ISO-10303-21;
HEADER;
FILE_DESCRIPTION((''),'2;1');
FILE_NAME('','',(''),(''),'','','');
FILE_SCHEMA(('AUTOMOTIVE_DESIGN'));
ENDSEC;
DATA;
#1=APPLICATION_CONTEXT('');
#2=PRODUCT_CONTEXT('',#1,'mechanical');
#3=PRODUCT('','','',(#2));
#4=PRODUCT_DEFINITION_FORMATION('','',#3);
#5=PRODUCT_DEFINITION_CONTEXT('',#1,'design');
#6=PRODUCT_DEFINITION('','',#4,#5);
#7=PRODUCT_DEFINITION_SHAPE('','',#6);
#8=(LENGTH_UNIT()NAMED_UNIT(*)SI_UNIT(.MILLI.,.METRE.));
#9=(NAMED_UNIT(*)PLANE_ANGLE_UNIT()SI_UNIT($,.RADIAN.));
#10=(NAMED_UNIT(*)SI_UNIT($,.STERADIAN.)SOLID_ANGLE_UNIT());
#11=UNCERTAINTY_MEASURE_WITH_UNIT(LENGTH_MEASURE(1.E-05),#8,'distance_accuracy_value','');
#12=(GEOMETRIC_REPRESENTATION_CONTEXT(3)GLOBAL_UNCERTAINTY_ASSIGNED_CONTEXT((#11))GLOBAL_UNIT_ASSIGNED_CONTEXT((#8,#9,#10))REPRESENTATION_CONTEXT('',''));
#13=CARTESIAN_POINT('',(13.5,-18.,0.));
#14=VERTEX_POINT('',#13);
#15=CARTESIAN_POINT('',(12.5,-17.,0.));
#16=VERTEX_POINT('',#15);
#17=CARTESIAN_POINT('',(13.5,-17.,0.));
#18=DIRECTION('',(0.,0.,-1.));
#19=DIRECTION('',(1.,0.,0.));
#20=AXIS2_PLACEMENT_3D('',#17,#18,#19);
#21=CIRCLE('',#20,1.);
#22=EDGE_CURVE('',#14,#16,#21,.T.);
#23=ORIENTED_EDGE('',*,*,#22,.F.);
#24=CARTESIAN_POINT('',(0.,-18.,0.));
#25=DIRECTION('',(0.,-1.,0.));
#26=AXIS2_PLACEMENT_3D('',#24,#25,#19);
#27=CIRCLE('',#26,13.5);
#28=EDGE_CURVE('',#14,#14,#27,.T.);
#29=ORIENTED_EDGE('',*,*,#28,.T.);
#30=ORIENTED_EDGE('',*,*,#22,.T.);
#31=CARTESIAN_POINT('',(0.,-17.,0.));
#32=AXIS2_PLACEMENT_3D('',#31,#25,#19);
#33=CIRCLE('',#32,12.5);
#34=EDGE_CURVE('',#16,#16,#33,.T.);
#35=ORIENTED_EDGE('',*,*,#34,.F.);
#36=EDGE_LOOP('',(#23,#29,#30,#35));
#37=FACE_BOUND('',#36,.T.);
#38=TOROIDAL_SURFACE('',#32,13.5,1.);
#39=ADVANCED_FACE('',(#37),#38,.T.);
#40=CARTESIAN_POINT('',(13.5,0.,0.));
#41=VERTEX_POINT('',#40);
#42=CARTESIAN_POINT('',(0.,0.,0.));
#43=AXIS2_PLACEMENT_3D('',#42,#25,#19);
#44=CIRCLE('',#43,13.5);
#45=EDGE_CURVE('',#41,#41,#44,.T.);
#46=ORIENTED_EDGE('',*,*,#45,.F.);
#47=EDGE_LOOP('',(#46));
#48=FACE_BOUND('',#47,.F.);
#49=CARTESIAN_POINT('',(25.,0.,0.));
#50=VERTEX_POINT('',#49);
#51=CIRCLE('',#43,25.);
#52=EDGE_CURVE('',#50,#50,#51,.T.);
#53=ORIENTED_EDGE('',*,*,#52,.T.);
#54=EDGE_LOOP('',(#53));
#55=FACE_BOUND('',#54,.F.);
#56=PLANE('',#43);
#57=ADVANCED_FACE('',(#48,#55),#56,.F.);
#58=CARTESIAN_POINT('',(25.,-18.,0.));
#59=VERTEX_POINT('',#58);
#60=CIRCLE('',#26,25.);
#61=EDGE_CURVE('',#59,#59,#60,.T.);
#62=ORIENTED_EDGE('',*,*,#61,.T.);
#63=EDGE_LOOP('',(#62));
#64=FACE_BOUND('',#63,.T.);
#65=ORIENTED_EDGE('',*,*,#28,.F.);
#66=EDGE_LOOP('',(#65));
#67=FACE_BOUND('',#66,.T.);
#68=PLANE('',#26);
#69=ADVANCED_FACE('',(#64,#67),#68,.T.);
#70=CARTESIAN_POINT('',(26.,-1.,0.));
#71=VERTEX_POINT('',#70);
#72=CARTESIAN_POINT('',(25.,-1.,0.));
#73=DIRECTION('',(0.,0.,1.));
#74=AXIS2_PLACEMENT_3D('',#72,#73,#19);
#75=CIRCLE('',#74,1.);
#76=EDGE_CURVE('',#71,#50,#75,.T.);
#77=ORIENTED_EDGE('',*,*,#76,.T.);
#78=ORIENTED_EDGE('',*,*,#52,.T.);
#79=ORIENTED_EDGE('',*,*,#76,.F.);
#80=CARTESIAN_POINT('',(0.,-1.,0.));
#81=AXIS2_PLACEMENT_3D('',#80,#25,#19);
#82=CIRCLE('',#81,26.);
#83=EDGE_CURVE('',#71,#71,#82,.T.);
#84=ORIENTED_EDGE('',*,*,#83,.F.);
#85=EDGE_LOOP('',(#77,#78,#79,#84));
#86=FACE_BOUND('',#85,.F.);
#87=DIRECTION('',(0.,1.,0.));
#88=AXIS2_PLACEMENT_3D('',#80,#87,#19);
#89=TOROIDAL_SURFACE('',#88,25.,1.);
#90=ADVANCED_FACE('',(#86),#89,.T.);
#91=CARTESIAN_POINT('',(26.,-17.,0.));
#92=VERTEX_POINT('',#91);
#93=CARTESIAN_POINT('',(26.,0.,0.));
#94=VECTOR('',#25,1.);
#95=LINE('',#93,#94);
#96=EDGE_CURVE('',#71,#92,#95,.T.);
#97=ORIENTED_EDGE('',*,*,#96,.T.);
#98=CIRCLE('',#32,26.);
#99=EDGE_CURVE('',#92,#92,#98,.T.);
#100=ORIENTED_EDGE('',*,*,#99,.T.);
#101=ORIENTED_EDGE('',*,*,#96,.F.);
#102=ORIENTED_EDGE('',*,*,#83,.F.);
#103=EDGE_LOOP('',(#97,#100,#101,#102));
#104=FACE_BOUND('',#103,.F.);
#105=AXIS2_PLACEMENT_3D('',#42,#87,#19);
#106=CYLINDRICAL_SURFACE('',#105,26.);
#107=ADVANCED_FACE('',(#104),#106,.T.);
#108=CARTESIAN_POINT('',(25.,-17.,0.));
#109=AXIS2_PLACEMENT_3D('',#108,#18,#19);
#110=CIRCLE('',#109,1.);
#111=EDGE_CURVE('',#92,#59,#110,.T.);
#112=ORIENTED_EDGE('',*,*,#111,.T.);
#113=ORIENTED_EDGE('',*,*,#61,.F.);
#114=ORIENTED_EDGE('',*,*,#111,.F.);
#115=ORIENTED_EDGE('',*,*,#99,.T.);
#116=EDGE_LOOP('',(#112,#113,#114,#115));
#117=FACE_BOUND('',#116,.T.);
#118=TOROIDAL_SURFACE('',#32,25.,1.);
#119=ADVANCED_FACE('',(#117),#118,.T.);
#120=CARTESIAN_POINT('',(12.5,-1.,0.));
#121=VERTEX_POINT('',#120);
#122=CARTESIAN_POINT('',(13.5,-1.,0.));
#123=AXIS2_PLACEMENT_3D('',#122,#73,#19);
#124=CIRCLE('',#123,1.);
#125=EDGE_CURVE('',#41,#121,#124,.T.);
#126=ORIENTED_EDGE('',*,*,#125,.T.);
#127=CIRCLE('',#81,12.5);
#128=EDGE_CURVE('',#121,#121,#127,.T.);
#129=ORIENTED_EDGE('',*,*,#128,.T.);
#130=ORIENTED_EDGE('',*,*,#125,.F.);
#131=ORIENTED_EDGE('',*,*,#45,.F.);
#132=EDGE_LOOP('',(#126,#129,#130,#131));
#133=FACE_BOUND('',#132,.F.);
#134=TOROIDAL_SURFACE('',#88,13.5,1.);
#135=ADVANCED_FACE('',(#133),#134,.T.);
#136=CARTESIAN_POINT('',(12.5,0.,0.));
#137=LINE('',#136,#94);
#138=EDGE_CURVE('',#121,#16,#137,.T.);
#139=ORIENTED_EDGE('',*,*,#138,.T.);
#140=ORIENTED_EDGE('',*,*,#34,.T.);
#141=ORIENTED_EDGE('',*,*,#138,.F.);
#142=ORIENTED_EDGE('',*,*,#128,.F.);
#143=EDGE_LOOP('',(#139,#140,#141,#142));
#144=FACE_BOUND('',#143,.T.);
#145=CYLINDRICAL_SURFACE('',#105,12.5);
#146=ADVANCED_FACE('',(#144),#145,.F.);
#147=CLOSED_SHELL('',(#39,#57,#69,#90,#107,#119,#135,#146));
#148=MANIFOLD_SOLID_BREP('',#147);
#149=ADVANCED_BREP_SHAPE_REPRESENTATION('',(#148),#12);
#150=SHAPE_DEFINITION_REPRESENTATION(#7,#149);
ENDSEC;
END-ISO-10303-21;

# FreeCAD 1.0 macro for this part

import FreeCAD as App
import Part
import Sketcher


def edges_at(feature, points):
    """Names of the edges that pass closest to the given points."""
    edges = feature.Shape.Edges
    near = lambda p: min(range(len(edges)), key=lambda i: edges[i].distToShape(Part.Vertex(*p))[0])
    return sorted({f"Edge{near(p) + 1}" for p in points})

doc = App.newDocument("Part")
body = doc.addObject("PartDesign::Body", "Body")

# Sketch on XZ plane
sketch1 = body.newObject("Sketcher::SketchObject", "Sketch")
sketch1.AttachmentSupport = (doc.getObject("XZ_Plane"), [""])
sketch1.MapMode = "FlatFace"
sketch1.addGeometry([
    Part.Circle(App.Vector(0, 0, 0), App.Vector(0, 0, 1), 26),
    Part.Circle(App.Vector(0, 0, 0), App.Vector(0, 0, 1), 12),
], False)
sketch1.addConstraint([
    Sketcher.Constraint("Coincident", 0, 3, -1, 1),
    Sketcher.Constraint("Coincident", 1, 3, -1, 1),
    Sketcher.Constraint("Diameter", 0, 52.0),
    Sketcher.Constraint("Diameter", 1, 25.0),
])
pad1 = body.newObject("PartDesign::Pad", "Pad")
pad1.Profile = sketch1
pad1.Length = 18
doc.recompute()

fillet = body.newObject("PartDesign::Fillet", "Fillet")
fillet.Base = (pad1, edges_at(pad1, [(-26, -18, 0), (-26, 0, 0)]))
fillet.Radius = 1
doc.recompute()

fillet2 = body.newObject("PartDesign::Fillet", "Fillet001")
fillet2.Base = (fillet, edges_at(fillet, [(-12.5, -18, 0), (-12.5, 0, 0)]))
fillet2.Radius = 1

doc.recompute()
